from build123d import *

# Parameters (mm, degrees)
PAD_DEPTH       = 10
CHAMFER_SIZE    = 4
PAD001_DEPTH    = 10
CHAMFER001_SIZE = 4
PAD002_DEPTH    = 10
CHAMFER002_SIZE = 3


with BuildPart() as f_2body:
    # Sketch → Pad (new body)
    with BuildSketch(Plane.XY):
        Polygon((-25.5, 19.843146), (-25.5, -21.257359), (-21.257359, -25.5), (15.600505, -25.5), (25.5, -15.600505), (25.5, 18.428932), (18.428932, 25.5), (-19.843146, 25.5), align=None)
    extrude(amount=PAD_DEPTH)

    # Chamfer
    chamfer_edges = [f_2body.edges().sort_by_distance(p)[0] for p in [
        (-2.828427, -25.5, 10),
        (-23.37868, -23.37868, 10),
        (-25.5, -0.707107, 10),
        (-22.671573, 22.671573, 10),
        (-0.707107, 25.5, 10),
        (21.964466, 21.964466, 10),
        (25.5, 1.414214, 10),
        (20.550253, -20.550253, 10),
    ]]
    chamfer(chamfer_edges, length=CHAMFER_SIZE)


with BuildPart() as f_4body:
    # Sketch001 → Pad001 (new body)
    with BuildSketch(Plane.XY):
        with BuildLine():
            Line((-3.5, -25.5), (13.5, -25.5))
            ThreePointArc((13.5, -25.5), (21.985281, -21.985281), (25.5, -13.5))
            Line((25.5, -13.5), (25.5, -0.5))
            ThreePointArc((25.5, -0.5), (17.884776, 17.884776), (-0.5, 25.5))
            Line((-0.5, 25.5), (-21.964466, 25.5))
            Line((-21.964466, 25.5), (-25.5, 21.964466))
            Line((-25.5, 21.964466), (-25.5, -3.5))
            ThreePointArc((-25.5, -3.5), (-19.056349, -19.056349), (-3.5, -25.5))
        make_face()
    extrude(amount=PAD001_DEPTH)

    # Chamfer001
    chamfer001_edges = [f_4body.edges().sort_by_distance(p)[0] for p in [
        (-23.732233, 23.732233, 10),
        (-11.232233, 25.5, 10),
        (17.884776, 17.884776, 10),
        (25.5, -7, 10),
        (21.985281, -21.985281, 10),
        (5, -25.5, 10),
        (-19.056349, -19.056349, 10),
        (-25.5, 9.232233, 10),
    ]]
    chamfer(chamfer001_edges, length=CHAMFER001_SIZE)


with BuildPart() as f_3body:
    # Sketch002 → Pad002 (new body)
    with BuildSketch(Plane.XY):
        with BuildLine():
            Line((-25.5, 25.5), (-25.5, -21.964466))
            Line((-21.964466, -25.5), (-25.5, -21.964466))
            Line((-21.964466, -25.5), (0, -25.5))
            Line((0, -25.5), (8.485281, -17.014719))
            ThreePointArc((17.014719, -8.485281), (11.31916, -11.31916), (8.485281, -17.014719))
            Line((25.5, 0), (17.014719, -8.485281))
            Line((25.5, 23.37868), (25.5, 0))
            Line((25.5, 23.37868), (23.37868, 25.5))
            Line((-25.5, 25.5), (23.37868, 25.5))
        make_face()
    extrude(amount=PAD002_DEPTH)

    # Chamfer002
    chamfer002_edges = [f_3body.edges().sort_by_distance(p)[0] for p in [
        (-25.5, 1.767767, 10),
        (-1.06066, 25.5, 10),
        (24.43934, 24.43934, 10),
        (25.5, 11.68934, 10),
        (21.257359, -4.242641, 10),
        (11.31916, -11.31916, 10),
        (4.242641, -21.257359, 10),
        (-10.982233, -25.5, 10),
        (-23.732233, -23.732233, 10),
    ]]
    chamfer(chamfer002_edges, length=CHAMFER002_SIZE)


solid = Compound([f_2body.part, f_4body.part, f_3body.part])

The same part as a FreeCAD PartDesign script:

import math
import FreeCAD as App
import Part
import Sketcher

V = App.Vector
Q = App.Units.Quantity


def edges_at(feature, points):
    """Names of the edges that pass closest to the given points."""
    edges = feature.Shape.Edges
    near = lambda p: min(range(len(edges)), key=lambda i: edges[i].distToShape(Part.Vertex(*p))[0])
    return sorted({f"Edge{near(p) + 1}" for p in points})


def add_polygon(sketch, points):
    """Adds a closed chain of lines whose ends are joined by coincident constraints."""
    first, n = sketch.GeometryCount, len(points)
    for a, b in zip(points, points[1:] + points[:1]):
        sketch.addGeometry(Part.LineSegment(App.Vector(*a, 0), App.Vector(*b, 0)), False)
    for i in range(n):
        sketch.addConstraint(Sketcher.Constraint("Coincident", first + i, 2, first + (i + 1) % n, 1))

doc = App.newDocument("Part")
body = doc.addObject("PartDesign::Body", "Body")

# Sketch on XY plane
sketch1 = body.newObject("Sketcher::SketchObject", "Sketch")
sketch1.AttachmentSupport = (doc.getObject("XY_Plane"), [""])
sketch1.MapMode = "FlatFace"
add_polygon(sketch1, [(-25.5, 19.843146), (-25.5, -21.257359), (-21.257359, -25.5), (15.600505, -25.5), (25.5, -15.600505), (25.5, 18.428932), (18.428932, 25.5), (-19.843146, 25.5)])  # lines 0-7
sketch1.addConstraint(Sketcher.Constraint("Vertical", 0))
sketch1.addConstraint(Sketcher.Constraint("Horizontal", 2))
sketch1.addConstraint(Sketcher.Constraint("Vertical", 4))
sketch1.addConstraint(Sketcher.Constraint("Horizontal", 6))
sketch1.addConstraint(Sketcher.Constraint("Perpendicular", 1, 3))
sketch1.addConstraint(Sketcher.Constraint("Perpendicular", 3, 5))
sketch1.addConstraint(Sketcher.Constraint("Perpendicular", 5, 7))
sketch1.addConstraint(Sketcher.Constraint("Angle", 1, Q("-45 deg")))
sketch1.addConstraint(Sketcher.Constraint("Distance", 1, 6.0))
sketch1.addConstraint(Sketcher.Constraint("Distance", 3, 14.0))
sketch1.addConstraint(Sketcher.Constraint("Distance", 5, 10.0))
sketch1.addConstraint(Sketcher.Constraint("Distance", 7, 8.0))
sketch1.addConstraint(Sketcher.Constraint("DistanceX", 0, 2, 3, 2, 51.0))
sketch1.addConstraint(Sketcher.Constraint("DistanceY", 2, 2, 5, 2, 51.0))
sketch1.addConstraint(Sketcher.Constraint("DistanceX", 0, 2, -1, 1, 25.5))
sketch1.addConstraint(Sketcher.Constraint("DistanceY", 1, 2, -1, 1, 25.5))
pad1 = body.newObject("PartDesign::Pad", "Pad")
pad1.Profile = sketch1
pad1.Length = 10
doc.recompute()

chamfer = body.newObject("PartDesign::Chamfer", "Chamfer")
chamfer.Base = (pad1, edges_at(pad1, [
    (-2.828, -25.5, 10),
    (-23.379, -23.379, 10),
    (-25.5, -0.707, 10),
    (-22.672, 22.672, 10),
    (-0.707, 25.5, 10),
    (21.964, 21.964, 10),
    (25.5, 1.414, 10),
    (20.55, -20.55, 10),
]))
chamfer.Size = 4
body2 = doc.addObject("PartDesign::Body", "Body001")

# Sketch on XY plane
sketch2 = body2.newObject("Sketcher::SketchObject", "Sketch001")
sketch2.AttachmentSupport = (doc.getObject("XY_Plane001"), [""])
sketch2.MapMode = "FlatFace"
sketch2.addGeometry(Part.LineSegment(V(-3.5, -25.5, 0), V(13.5, -25.5, 0)), False)
sketch2.addGeometry(Part.ArcOfCircle(Part.Circle(V(13.499999, -13.499999, 0), V(0, 0, 1), 12.000001), math.radians(-89.999994), math.radians(-0.000006)), False)
sketch2.addGeometry(Part.LineSegment(V(25.5, -13.5, 0), V(25.5, -0.5, 0)), False)
sketch2.addGeometry(Part.ArcOfCircle(Part.Circle(V(-0.500001, -0.500001, 0), V(0, 0, 1), 26.000001), math.radians(0.000002), math.radians(89.999998)), False)
sketch2.addGeometry(Part.LineSegment(V(-0.5, 25.5, 0), V(-21.964466, 25.5, 0)), False)
sketch2.addGeometry(Part.LineSegment(V(-21.964466, 25.5, 0), V(-25.5, 21.964466, 0)), False)
sketch2.addGeometry(Part.LineSegment(V(-25.5, 21.964466, 0), V(-25.5, -3.5, 0)), False)
sketch2.addGeometry(Part.ArcOfCircle(Part.Circle(V(-3.499999, -3.499999, 0), V(0, 0, 1), 22.000001), math.radians(-179.999998), math.radians(-90.000002)), False)
sketch2.addConstraint(Sketcher.Constraint("Tangent", 0, 2, 1, 1))
sketch2.addConstraint(Sketcher.Constraint("Tangent", 1, 2, 2, 1))
sketch2.addConstraint(Sketcher.Constraint("Tangent", 2, 2, 3, 1))
sketch2.addConstraint(Sketcher.Constraint("Tangent", 3, 2, 4, 1))
sketch2.addConstraint(Sketcher.Constraint("Coincident", 4, 2, 5, 1))
sketch2.addConstraint(Sketcher.Constraint("Coincident", 5, 2, 6, 1))
sketch2.addConstraint(Sketcher.Constraint("Tangent", 6, 2, 7, 1))
sketch2.addConstraint(Sketcher.Constraint("Tangent", 7, 2, 0, 1))
sketch2.addConstraint(Sketcher.Constraint("Horizontal", 0))
sketch2.addConstraint(Sketcher.Constraint("Vertical", 2))
sketch2.addConstraint(Sketcher.Constraint("Horizontal", 4))
sketch2.addConstraint(Sketcher.Constraint("Vertical", 6))
sketch2.addConstraint(Sketcher.Constraint("Radius", 1, 12.000001))
sketch2.addConstraint(Sketcher.Constraint("Radius", 3, 26.000001))
sketch2.addConstraint(Sketcher.Constraint("Radius", 7, 22.000001))
sketch2.addConstraint(Sketcher.Constraint("DistanceX", 0, 1, 0, 2, 17.0))
sketch2.addConstraint(Sketcher.Constraint("DistanceY", 2, 1, 2, 2, 13.0))
sketch2.addConstraint(Sketcher.Constraint("Angle", 5, Q("-135 deg")))
sketch2.addConstraint(Sketcher.Constraint("Distance", 5, 5.0))
sketch2.addConstraint(Sketcher.Constraint("DistanceX", -1, 1, 1, 3, 13.499999))
sketch2.addConstraint(Sketcher.Constraint("DistanceY", 1, 3, -1, 1, 13.499999))
pad2 = body2.newObject("PartDesign::Pad", "Pad001")
pad2.Profile = sketch2
pad2.Length = 10
doc.recompute()

chamfer2 = body2.newObject("PartDesign::Chamfer", "Chamfer001")
chamfer2.Base = (pad2, edges_at(pad2, [
    (-23.732, 23.732, 10),
    (-11.232, 25.5, 10),
    (17.885, 17.885, 10),
    (25.5, -7, 10),
    (21.985, -21.985, 10),
    (5, -25.5, 10),
    (-19.056, -19.056, 10),
    (-25.5, 9.232, 10),
]))
chamfer2.Size = 4
body3 = doc.addObject("PartDesign::Body", "Body002")

# Sketch on XY plane
sketch3 = body3.newObject("Sketcher::SketchObject", "Sketch002")
sketch3.AttachmentSupport = (doc.getObject("XY_Plane002"), [""])
sketch3.MapMode = "FlatFace"
sketch3.addGeometry(Part.LineSegment(V(-25.5, 25.5, 0), V(-25.5, -21.964466, 0)), False)
sketch3.addGeometry(Part.LineSegment(V(-25.5, -21.964466, 0), V(-21.964466, -25.5, 0)), False)
sketch3.addGeometry(Part.LineSegment(V(-21.964466, -25.5, 0), V(0, -25.5, 0)), False)
sketch3.addGeometry(Part.LineSegment(V(0, -25.5, 0), V(8.485281, -17.014719, 0)), False)
sketch3.addGeometry(Part.ArcOfCircle(Part.Circle(V(18.390227, -18.390227, 0), V(0, 0, 1), 9.999999), math.radians(97.906148), math.radians(172.093852)), False)
sketch3.addGeometry(Part.LineSegment(V(17.014719, -8.485281, 0), V(25.5, 0, 0)), False)
sketch3.addGeometry(Part.LineSegment(V(25.5, 0, 0), V(25.5, 23.37868, 0)), False)
sketch3.addGeometry(Part.LineSegment(V(25.5, 23.37868, 0), V(23.37868, 25.5, 0)), False)
sketch3.addGeometry(Part.LineSegment(V(23.37868, 25.5, 0), V(-25.5, 25.5, 0)), False)
sketch3.addConstraint(Sketcher.Constraint("Coincident", 0, 2, 1, 1))
sketch3.addConstraint(Sketcher.Constraint("Coincident", 1, 2, 2, 1))
sketch3.addConstraint(Sketcher.Constraint("Coincident", 2, 2, 3, 1))
sketch3.addConstraint(Sketcher.Constraint("Coincident", 3, 2, 4, 2))
sketch3.addConstraint(Sketcher.Constraint("Coincident", 4, 1, 5, 1))
sketch3.addConstraint(Sketcher.Constraint("Coincident", 5, 2, 6, 1))
sketch3.addConstraint(Sketcher.Constraint("Coincident", 6, 2, 7, 1))
sketch3.addConstraint(Sketcher.Constraint("Coincident", 7, 2, 8, 1))
sketch3.addConstraint(Sketcher.Constraint("Coincident", 8, 2, 0, 1))
sketch3.addConstraint(Sketcher.Constraint("Vertical", 0))
sketch3.addConstraint(Sketcher.Constraint("Horizontal", 2))
sketch3.addConstraint(Sketcher.Constraint("Vertical", 6))
sketch3.addConstraint(Sketcher.Constraint("Horizontal", 8))
sketch3.addConstraint(Sketcher.Constraint("PointOnObject", 2, 2, -2))
sketch3.addConstraint(Sketcher.Constraint("PointOnObject", 5, 2, -1))
sketch3.addConstraint(Sketcher.Constraint("Perpendicular", 1, 3))
sketch3.addConstraint(Sketcher.Constraint("Parallel", 3, 5))
sketch3.addConstraint(Sketcher.Constraint("Perpendicular", 5, 7))
sketch3.addConstraint(Sketcher.Constraint("Equal", 3, 5))
sketch3.addConstraint(Sketcher.Constraint("Radius", 4, 9.999999))
sketch3.addConstraint(Sketcher.Constraint("Angle", 1, Q("-45 deg")))
sketch3.addConstraint(Sketcher.Constraint("Distance", 1, 5.0))
sketch3.addConstraint(Sketcher.Constraint("Distance", 3, 11.999999))
sketch3.addConstraint(Sketcher.Constraint("Distance", 7, 3.0))
sketch3.addConstraint(Sketcher.Constraint("DistanceX", 8, 2, 6, 2, 51.0))
sketch3.addConstraint(Sketcher.Constraint("DistanceY", 1, 2, 8, 2, 51.0))
sketch3.addConstraint(Sketcher.Constraint("DistanceX", 0, 2, -1, 1, 25.5))
sketch3.addConstraint(Sketcher.Constraint("DistanceY", 1, 2, -1, 1, 25.5))
pad3 = body3.newObject("PartDesign::Pad", "Pad002")
pad3.Profile = sketch3
pad3.Length = 10
doc.recompute()

chamfer3 = body3.newObject("PartDesign::Chamfer", "Chamfer002")
chamfer3.Base = (pad3, edges_at(pad3, [
    (-25.5, 1.768, 10),
    (-1.061, 25.5, 10),
    (24.439, 24.439, 10),
    (25.5, 11.689, 10),
    (21.257, -4.243, 10),
    (11.319, -11.319, 10),
    (4.243, -21.257, 10),
    (-10.982, -25.5, 10),
    (-23.732, -23.732, 10),
]))
chamfer3.Size = 3

doc.recompute()
